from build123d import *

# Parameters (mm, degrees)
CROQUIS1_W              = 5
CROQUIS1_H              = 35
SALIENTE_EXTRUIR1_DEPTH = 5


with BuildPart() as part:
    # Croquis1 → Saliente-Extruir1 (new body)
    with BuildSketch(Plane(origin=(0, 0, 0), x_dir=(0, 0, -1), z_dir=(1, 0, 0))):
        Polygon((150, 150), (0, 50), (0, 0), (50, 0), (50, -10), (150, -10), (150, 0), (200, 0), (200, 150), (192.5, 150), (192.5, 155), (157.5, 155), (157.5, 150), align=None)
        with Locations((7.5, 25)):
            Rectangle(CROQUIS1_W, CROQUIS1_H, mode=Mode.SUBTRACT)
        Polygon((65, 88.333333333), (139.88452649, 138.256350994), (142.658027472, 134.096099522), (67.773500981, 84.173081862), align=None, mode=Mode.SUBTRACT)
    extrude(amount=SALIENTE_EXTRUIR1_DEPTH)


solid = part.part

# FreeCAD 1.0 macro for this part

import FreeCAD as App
import Part
import Sketcher
from FreeCAD import Vector
Q = App.Units.Quantity


def add_polygon(sketch, points):
    """Adds a closed chain of lines whose ends are joined by coincident constraints."""
    first, n = sketch.GeometryCount, len(points)
    for a, b in zip(points, points[1:] + points[:1]):
        sketch.addGeometry(Part.LineSegment(App.Vector(*a, 0), App.Vector(*b, 0)), False)
    for i in range(n):
        sketch.addConstraint(Sketcher.Constraint("Coincident", first + i, 2, first + (i + 1) % n, 1))

doc = App.newDocument("Part")
body = doc.addObject("PartDesign::Body", "Body")

# Sketch on YZ plane
sketch1 = doc.addObject("Sketcher::SketchObject", "Sketch")
body.addObject(sketch1)
sketch1.AttachmentSupport = (doc.YZ_Plane, [""])
sketch1.MapMode = "FlatFace"
add_polygon(sketch1, [(150, -150), (50, 0), (0, 0), (0, -50), (-10, -50), (-10, -150), (0, -150), (0, -200), (150, -200), (150, -192.5), (155, -192.5), (155, -157.5), (150, -157.5)])  # lines 0-12
add_polygon(sketch1, [(7.5, -10), (7.5, -5), (42.5, -5), (42.5, -10)])  # lines 13-16
add_polygon(sketch1, [(84.2, -67.8), (88.3, -65), (138.3, -139.9), (134.1, -142.7)])  # lines 17-20
sketch1.addConstraint(Sketcher.Constraint("Horizontal", 1))
sketch1.addConstraint(Sketcher.Constraint("Vertical", 2))
sketch1.addConstraint(Sketcher.Constraint("Horizontal", 3))
sketch1.addConstraint(Sketcher.Constraint("Vertical", 4))
sketch1.addConstraint(Sketcher.Constraint("Horizontal", 5))
sketch1.addConstraint(Sketcher.Constraint("Vertical", 6))
sketch1.addConstraint(Sketcher.Constraint("Horizontal", 7))
sketch1.addConstraint(Sketcher.Constraint("Vertical", 8))
sketch1.addConstraint(Sketcher.Constraint("Horizontal", 9))
sketch1.addConstraint(Sketcher.Constraint("Vertical", 10))
sketch1.addConstraint(Sketcher.Constraint("Horizontal", 11))
sketch1.addConstraint(Sketcher.Constraint("Vertical", 12))
sketch1.addConstraint(Sketcher.Constraint("Vertical", 13))
sketch1.addConstraint(Sketcher.Constraint("Horizontal", 14))
sketch1.addConstraint(Sketcher.Constraint("Vertical", 15))
sketch1.addConstraint(Sketcher.Constraint("Horizontal", 16))
sketch1.addConstraint(Sketcher.Constraint("Coincident", 1, 2, -1, 1))
sketch1.addConstraint(Sketcher.Constraint("PointOnObject", 5, 2, -2))
sketch1.addConstraint(Sketcher.Constraint("Perpendicular", 0, 17))
sketch1.addConstraint(Sketcher.Constraint("Perpendicular", 17, 18))
sketch1.addConstraint(Sketcher.Constraint("Perpendicular", 18, 19))
sketch1.addConstraint(Sketcher.Constraint("Perpendicular", 19, 20))
sketch1.addConstraint(Sketcher.Constraint("Horizontal", 5, 2, 12, 2))
sketch1.addConstraint(Sketcher.Constraint("Vertical", 8, 2, 11, 2))
sketch1.addConstraint(Sketcher.Constraint("Equal", 1, 2))
sketch1.addConstraint(Sketcher.Constraint("Equal", 2, 6))
sketch1.addConstraint(Sketcher.Constraint("Equal", 16, 10))
sketch1.addConstraint(Sketcher.Constraint("Equal", 8, 12))
sketch1.addConstraint(Sketcher.Constraint("Equal", 11, 13))
sketch1.addConstraint(Sketcher.Constraint("DistanceX", 1, 2, 1, 1, Q("50 mm")))
sketch1.addConstraint(Sketcher.Constraint("DistanceX", 3, 2, 3, 1, Q("10 mm")))
sketch1.addConstraint(Sketcher.Constraint("DistanceX", 7, 1, 7, 2, Q("150 mm")))
sketch1.addConstraint(Sketcher.Constraint("DistanceX", 9, 1, 9, 2, Q("5 mm")))
sketch1.addConstraint(Sketcher.Constraint("DistanceX", 14, 1, 14, 2, Q("35 mm")))
sketch1.addConstraint(Sketcher.Constraint("DistanceY", 4, 2, 4, 1, Q("100 mm")))
sketch1.addConstraint(Sketcher.Constraint("Distance", 17, Q("5 mm")))
sketch1.addConstraint(Sketcher.Constraint("Distance", 18, Q("90 mm")))
sketch1.addConstraint(Sketcher.Constraint("DistanceY", 13, 2, -1, 1, Q("5 mm")))
sketch1.addConstraint(Sketcher.Constraint("DistanceY", 17, 2, -1, 1, Q("65 mm")))
sketch1.addConstraint(Sketcher.Constraint("DistanceX", -1, 1, 13, 2, Q("7.5 mm")))
sketch1.addConstraint(Sketcher.Constraint("DistanceX", -1, 1, 19, 2, Q("134.0961 mm")))
pad1 = doc.addObject("PartDesign::Pad", "Pad")
body.addObject(pad1)
pad1.Profile = sketch1
pad1.Length = 5

doc.recompute()
